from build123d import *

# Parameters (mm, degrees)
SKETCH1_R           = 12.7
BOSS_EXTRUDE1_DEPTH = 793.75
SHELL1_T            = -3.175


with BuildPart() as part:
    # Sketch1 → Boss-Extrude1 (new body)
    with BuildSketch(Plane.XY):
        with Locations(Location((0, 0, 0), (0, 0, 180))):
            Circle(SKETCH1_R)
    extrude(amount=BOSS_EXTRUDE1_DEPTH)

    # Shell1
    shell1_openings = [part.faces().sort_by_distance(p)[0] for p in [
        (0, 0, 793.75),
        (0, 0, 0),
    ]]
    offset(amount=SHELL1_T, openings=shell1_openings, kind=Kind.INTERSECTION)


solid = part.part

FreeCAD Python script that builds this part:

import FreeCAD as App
import Part
import Sketcher
from FreeCAD import Vector
Q = App.Units.Quantity


def faces_at(feature, points):
    """Names of the faces that lie closest to the given points."""
    faces = feature.Shape.Faces
    near = lambda p: min(range(len(faces)), key=lambda i: faces[i].distToShape(Part.Vertex(*p))[0])
    return sorted({f"Face{near(p) + 1}" for p in points})

doc = App.newDocument("Part")
body = doc.addObject("PartDesign::Body", "Body")

# Sketch on XY plane
sketch1 = body.newObject("Sketcher::SketchObject", "Sketch")
sketch1.AttachmentSupport = (doc.getObject("XY_Plane"), [""])
sketch1.MapMode = "FlatFace"
sketch1.addGeometry(Part.Circle(Vector(0, 0, 0), Vector(0, 0, 1), 13), False)
sketch1.addConstraint([
    Sketcher.Constraint("Coincident", 0, 3, -1, 1),
    Sketcher.Constraint("Diameter", 0, Q("1 in")),
])
pad1 = body.newObject("PartDesign::Pad", "Pad")
pad1.Profile = sketch1
pad1.Length = Q("31.25 in")
doc.recompute()

thickness = body.newObject("PartDesign::Thickness", "Thickness")
thickness.Base = (pad1, faces_at(pad1, [(0, 0, 793.75), (0, 0, 0)]))
thickness.Value = Q("0.125 in")
thickness.Reversed = True
thickness.Join = "Intersection"

doc.recompute()
